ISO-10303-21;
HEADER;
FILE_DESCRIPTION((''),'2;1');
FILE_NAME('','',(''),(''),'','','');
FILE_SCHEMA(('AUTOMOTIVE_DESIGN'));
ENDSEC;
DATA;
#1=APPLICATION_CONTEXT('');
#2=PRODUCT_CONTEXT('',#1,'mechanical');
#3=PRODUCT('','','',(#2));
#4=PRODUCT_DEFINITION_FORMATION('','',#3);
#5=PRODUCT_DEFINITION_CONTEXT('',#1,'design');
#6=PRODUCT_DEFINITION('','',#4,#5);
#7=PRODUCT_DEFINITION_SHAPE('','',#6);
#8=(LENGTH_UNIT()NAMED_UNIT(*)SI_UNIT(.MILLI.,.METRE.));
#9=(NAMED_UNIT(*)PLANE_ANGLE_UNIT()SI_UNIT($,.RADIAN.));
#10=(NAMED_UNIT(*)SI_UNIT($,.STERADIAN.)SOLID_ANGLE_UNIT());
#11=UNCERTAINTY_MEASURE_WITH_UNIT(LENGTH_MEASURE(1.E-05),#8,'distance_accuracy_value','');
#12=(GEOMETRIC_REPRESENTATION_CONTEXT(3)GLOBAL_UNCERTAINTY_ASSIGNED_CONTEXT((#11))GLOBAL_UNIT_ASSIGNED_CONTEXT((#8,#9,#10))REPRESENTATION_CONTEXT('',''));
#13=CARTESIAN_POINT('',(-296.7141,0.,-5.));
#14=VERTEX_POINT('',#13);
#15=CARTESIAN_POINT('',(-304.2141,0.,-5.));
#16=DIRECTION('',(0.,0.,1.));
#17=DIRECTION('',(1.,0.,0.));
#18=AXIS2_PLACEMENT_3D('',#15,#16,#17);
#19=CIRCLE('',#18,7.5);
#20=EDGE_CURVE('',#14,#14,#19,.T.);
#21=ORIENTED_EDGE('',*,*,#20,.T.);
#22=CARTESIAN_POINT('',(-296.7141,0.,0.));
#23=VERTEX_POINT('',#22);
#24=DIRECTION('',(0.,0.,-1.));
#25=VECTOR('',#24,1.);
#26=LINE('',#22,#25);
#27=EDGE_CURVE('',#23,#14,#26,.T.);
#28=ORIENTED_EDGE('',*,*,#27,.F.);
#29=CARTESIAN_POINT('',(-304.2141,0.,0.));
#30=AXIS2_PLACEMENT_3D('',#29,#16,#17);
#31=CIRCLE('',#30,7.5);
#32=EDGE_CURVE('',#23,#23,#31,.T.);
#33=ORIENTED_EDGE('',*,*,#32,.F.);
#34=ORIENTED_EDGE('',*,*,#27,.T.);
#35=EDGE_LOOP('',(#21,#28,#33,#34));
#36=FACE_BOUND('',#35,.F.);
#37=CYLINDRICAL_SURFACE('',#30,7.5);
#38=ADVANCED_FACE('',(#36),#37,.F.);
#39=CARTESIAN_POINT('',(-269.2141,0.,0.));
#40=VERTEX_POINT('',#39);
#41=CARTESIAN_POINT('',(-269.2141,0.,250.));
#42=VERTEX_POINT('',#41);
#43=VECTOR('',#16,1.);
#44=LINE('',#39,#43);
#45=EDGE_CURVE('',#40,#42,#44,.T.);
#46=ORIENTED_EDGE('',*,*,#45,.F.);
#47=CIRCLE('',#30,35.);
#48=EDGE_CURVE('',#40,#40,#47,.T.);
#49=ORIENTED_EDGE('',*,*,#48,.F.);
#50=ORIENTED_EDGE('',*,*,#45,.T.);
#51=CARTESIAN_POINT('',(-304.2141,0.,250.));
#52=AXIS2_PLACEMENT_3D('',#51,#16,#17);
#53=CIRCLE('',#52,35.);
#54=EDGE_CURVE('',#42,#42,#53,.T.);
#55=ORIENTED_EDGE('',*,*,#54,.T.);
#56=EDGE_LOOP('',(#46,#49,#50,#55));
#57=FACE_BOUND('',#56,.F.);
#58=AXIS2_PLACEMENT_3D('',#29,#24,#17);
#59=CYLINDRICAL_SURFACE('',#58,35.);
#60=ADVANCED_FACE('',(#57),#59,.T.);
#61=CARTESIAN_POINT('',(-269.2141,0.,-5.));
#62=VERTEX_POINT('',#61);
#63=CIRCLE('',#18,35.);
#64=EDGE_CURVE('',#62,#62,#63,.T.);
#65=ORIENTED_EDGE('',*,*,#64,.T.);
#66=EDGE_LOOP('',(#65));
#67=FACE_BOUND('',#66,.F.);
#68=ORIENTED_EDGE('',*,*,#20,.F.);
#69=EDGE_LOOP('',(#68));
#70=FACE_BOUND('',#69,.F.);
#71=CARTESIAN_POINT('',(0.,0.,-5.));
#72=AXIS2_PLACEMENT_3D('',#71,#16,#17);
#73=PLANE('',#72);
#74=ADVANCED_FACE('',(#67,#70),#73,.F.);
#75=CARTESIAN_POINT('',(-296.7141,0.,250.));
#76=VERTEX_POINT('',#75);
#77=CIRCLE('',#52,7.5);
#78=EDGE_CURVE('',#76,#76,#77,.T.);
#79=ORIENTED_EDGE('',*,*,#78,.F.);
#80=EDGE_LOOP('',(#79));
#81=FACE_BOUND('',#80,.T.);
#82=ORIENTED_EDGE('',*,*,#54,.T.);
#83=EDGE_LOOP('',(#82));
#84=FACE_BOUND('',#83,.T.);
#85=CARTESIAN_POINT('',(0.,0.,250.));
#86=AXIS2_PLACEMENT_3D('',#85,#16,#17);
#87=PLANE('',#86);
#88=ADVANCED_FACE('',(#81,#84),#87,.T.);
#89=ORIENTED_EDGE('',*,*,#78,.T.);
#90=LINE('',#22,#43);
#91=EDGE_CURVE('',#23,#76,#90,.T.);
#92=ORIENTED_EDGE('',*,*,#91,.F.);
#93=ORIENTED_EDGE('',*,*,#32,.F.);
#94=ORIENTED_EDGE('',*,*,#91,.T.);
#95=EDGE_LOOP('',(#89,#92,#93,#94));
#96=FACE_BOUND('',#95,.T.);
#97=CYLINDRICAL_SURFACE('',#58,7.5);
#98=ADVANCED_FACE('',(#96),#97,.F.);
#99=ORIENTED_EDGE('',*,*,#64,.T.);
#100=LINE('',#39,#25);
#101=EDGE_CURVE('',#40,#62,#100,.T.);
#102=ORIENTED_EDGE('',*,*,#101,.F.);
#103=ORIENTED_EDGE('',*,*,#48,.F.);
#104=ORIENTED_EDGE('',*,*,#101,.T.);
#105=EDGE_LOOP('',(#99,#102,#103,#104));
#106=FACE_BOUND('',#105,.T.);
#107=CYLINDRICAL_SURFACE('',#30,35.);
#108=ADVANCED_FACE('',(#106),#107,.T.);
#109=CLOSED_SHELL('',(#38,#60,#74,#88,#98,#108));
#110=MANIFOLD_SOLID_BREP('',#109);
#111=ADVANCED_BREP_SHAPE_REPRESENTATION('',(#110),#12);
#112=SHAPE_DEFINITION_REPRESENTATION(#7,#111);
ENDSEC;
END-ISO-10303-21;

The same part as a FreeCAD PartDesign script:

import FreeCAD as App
import Part
import Sketcher
Q = App.Units.Quantity

doc = App.newDocument("Part")
params = doc.addObject("Spreadsheet::Sheet", "Params")
for row, (alias, value) in enumerate([
    ("sketch1_diameter", "70 mm"),
    ("sketch1_diameter2", "15 mm"),
    ("pad1_length", "250 mm"),
    ("pad1_length2", "5 mm"),
], start=1):
    params.set(f"A{row}", alias)
    params.set(f"B{row}", "=" + value)
    params.setAlias(f"B{row}", alias)

body = doc.addObject("PartDesign::Body", "Body")

# Sketch on XY plane
sketch1 = body.newObject("Sketcher::SketchObject", "Sketch")
sketch1.AttachmentSupport = (doc.getObject("XY_Plane"), [""])
sketch1.MapMode = "FlatFace"
sketch1.addGeometry(Part.Circle(App.Vector(-304, 0, 0), App.Vector(0, 0, 1), 35), False)
sketch1.addGeometry(Part.Circle(App.Vector(-304, 0, 0), App.Vector(0, 0, 1), 8), False)
sketch1.addConstraint(Sketcher.Constraint("Coincident", 1, 3, 0, 3))
sketch1.addConstraint(Sketcher.Constraint("PointOnObject", 0, 3, -1))
sketch1.addConstraint(Sketcher.Constraint("Diameter", 0, Q("70 mm")))
sketch1.addConstraint(Sketcher.Constraint("Diameter", 1, Q("15 mm")))
sketch1.addConstraint(Sketcher.Constraint("DistanceX", 0, 3, -1, 1, Q("304.214 mm")))
sketch1.setExpression("Constraints[2]", "Params.sketch1_diameter")
sketch1.setExpression("Constraints[3]", "Params.sketch1_diameter2")
pad1 = body.newObject("PartDesign::Pad", "Pad")
pad1.Profile = sketch1
pad1.Type = "TwoLengths"
pad1.setExpression("Length", "Params.pad1_length")
pad1.setExpression("Length2", "Params.pad1_length2")

doc.recompute()
